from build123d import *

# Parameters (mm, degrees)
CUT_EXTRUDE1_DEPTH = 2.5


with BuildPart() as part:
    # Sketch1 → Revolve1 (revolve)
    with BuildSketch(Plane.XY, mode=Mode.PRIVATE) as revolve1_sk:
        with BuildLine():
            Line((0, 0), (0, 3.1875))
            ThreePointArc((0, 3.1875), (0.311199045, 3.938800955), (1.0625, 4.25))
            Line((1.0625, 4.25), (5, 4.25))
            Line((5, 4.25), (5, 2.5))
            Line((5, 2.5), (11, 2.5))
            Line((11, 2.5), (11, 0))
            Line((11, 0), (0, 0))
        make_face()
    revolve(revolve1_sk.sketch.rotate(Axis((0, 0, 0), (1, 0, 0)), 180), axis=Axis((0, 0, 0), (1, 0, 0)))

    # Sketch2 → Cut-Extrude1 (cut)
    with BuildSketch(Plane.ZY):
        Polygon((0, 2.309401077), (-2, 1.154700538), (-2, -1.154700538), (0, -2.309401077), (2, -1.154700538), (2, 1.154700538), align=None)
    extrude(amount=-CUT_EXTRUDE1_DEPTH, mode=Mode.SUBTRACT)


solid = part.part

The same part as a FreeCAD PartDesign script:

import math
import FreeCAD as App
import Part
import Sketcher

V = App.Vector
Q = App.Units.Quantity

doc = App.newDocument("Part")
body = doc.addObject("PartDesign::Body", "Body")

sketch1 = doc.addObject("Sketcher::SketchObject", "Sketch")
body.addObject(sketch1)
sketch1.AttachmentSupport = (doc.XY_Plane, [""])
sketch1.MapMode = "FlatFace"
sketch1.addGeometry([
    Part.LineSegment(V(0, 3.2, 0), V(0, 0, 0)),
    Part.LineSegment(V(0, 0, 0), V(11, 0, 0)),
    Part.LineSegment(V(11, 0, 0), V(11, 2.5, 0)),
    Part.LineSegment(V(11, 2.5, 0), V(5, 2.5, 0)),
    Part.LineSegment(V(5, 2.5, 0), V(5, 4.2, 0)),
    Part.LineSegment(V(5, 4.2, 0), V(1.1, 4.2, 0)),
    Part.ArcOfCircle(Part.Circle(V(1.1, 3.2, 0), V(0, 0, 1), 1.1), math.radians(90), math.radians(180)),
], False)
sketch1.addConstraint([
    Sketcher.Constraint("Coincident", 0, 2, 1, 1),
    Sketcher.Constraint("Coincident", 1, 2, 2, 1),
    Sketcher.Constraint("Coincident", 2, 2, 3, 1),
    Sketcher.Constraint("Coincident", 3, 2, 4, 1),
    Sketcher.Constraint("Coincident", 4, 2, 5, 1),
    Sketcher.Constraint("Tangent", 5, 2, 6, 1),
    Sketcher.Constraint("Tangent", 6, 2, 0, 1),
    Sketcher.Constraint("Vertical", 0),
    Sketcher.Constraint("Horizontal", 1),
    Sketcher.Constraint("Vertical", 2),
    Sketcher.Constraint("Horizontal", 3),
    Sketcher.Constraint("Vertical", 4),
    Sketcher.Constraint("Horizontal", 5),
    Sketcher.Constraint("Coincident", 0, 2, -1, 1),
    Sketcher.Constraint("DistanceX", 1, 1, 1, 2, 11.0),
    Sketcher.Constraint("DistanceX", 3, 2, 3, 1, 6.0),
    Sketcher.Constraint("DistanceY", 2, 1, 2, 2, 2.5),
    Sketcher.Constraint("DistanceY", 4, 1, 4, 2, 1.75),
    Sketcher.Constraint("Radius", 6, 1.0625),
])
revolution = doc.addObject("PartDesign::Revolution", "Revolution")
body.addObject(revolution)
revolution.Profile = sketch1
revolution.ReferenceAxis = (sketch1, ["H_Axis"])
revolution.Angle = 360

sketch2 = doc.addObject("Sketcher::SketchObject", "Sketch001")
body.addObject(sketch2)
sketch2.AttachmentSupport = (doc.YZ_Plane, [""])
sketch2.MapMode = "FlatFace"
sketch2.addGeometry([
    Part.LineSegment(V(2.3, 0, 0), V(1.2, -2, 0)),
    Part.LineSegment(V(1.2, -2, 0), V(-1.2, -2, 0)),
    Part.LineSegment(V(-1.2, -2, 0), V(-2.3, 0, 0)),
    Part.LineSegment(V(-2.3, 0, 0), V(-1.2, 2, 0)),
    Part.LineSegment(V(-1.2, 2, 0), V(1.2, 2, 0)),
    Part.LineSegment(V(1.2, 2, 0), V(2.3, 0, 0)),
], False)
sketch2.addConstraint([
    Sketcher.Constraint("Coincident", 0, 2, 1, 1),
    Sketcher.Constraint("Coincident", 1, 2, 2, 1),
    Sketcher.Constraint("Coincident", 2, 2, 3, 1),
    Sketcher.Constraint("Coincident", 3, 2, 4, 1),
    Sketcher.Constraint("Coincident", 4, 2, 5, 1),
    Sketcher.Constraint("Coincident", 5, 2, 0, 1),
    Sketcher.Constraint("Horizontal", 1),
    Sketcher.Constraint("Horizontal", 4),
    Sketcher.Constraint("Symmetric", 0, 2, 3, 2, -1, 1),
    Sketcher.Constraint("Symmetric", 2, 2, 5, 2, -1, 1),
    Sketcher.Constraint("PointOnObject", 2, 2, -1),
    Sketcher.Constraint("Parallel", 2, 5),
    Sketcher.Constraint("Vertical", 1, 2, 3, 2),
    Sketcher.Constraint("Angle", 0, Q("-120 deg")),
    Sketcher.Constraint("DistanceY", 0, 2, -1, 1, 2.0),
    Sketcher.Constraint("DistanceX", 1, 2, 1, 1, 2.309401),
])
pocket1 = doc.addObject("PartDesign::Pocket", "Pocket")
body.addObject(pocket1)
pocket1.Profile = sketch2
pocket1.Length = 2.5
pocket1.Reversed = True

doc.recompute()
